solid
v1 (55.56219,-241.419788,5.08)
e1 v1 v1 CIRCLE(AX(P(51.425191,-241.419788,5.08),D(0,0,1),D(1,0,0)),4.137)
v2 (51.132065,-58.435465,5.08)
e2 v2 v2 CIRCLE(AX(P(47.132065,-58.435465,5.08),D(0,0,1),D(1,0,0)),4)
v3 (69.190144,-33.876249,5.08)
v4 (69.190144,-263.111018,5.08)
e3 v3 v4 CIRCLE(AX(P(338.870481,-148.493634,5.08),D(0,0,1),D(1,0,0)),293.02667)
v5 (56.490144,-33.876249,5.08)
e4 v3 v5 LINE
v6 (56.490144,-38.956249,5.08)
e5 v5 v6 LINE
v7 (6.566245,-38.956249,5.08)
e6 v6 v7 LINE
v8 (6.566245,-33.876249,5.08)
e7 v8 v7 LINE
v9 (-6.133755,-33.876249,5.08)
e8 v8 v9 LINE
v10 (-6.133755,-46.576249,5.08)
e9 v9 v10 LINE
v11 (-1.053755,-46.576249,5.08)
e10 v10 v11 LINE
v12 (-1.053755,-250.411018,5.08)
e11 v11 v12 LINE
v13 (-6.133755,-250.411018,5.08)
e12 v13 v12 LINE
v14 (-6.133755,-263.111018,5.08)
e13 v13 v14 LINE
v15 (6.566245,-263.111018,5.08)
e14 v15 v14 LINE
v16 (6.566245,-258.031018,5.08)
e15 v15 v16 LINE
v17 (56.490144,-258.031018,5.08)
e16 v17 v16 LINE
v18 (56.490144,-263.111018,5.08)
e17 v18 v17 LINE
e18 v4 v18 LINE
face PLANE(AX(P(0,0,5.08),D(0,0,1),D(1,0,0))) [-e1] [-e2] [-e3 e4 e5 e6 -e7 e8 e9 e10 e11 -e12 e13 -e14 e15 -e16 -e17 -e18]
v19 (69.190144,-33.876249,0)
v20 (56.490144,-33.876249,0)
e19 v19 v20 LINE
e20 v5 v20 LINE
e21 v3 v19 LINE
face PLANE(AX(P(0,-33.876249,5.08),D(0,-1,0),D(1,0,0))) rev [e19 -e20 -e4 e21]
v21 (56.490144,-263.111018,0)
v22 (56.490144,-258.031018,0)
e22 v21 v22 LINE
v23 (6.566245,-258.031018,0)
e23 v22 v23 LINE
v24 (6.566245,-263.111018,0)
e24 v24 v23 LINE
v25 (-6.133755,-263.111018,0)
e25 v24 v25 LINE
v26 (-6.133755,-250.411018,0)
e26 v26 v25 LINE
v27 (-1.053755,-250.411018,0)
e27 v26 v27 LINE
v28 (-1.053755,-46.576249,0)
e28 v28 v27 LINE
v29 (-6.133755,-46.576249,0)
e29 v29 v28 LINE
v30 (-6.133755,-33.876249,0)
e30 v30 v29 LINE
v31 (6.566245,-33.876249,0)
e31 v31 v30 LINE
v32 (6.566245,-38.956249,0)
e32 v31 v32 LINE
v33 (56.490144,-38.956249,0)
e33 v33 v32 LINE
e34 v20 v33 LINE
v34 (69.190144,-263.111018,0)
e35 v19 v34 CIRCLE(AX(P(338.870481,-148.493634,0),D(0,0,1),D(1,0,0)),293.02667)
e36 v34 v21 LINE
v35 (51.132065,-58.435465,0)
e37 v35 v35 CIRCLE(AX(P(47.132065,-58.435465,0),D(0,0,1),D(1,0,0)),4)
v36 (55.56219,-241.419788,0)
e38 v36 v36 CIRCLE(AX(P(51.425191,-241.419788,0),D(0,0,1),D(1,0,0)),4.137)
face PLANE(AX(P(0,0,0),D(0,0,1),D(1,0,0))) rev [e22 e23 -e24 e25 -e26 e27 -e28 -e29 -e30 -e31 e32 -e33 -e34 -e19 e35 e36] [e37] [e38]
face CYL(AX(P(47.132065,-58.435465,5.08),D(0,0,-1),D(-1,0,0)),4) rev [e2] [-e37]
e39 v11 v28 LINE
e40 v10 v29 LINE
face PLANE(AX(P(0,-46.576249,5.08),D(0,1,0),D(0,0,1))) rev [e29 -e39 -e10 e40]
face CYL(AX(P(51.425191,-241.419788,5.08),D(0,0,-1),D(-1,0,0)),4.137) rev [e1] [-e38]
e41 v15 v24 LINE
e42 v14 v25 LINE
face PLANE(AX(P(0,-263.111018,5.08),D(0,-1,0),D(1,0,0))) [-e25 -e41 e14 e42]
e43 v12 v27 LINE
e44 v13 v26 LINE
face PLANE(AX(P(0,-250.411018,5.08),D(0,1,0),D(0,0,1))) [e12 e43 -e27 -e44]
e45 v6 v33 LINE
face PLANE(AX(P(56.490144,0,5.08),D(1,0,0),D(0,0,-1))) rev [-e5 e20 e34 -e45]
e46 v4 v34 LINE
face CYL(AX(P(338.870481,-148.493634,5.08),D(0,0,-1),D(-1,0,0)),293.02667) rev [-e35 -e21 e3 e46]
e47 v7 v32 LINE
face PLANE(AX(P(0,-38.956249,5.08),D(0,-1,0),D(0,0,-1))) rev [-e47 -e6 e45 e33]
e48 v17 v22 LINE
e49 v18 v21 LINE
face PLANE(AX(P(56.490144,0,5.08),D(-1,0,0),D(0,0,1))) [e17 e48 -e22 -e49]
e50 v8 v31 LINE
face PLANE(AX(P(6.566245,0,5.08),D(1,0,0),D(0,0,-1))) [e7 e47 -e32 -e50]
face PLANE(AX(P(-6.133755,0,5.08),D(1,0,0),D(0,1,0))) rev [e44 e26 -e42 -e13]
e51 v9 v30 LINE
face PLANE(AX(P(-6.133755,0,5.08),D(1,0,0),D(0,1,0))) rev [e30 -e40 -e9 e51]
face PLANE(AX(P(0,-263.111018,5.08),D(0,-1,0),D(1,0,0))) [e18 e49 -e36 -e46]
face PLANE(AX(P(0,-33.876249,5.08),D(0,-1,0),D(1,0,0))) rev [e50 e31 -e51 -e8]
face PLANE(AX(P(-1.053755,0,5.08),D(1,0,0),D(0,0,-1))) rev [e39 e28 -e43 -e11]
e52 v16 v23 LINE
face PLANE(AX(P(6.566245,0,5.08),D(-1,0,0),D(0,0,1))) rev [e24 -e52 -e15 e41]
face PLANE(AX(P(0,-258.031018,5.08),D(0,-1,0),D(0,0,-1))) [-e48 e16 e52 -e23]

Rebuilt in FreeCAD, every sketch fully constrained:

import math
import FreeCAD as App
import Part
import Sketcher
from FreeCAD import Vector
Q = App.Units.Quantity

doc = App.newDocument("Part")
body = doc.addObject("PartDesign::Body", "Body")

sketch1 = body.newObject("Sketcher::SketchObject", "Sketch")
sketch1.AttachmentSupport = (doc.getObject("XY_Plane"), [""])
sketch1.MapMode = "FlatFace"
sketch1.addGeometry([
    Part.LineSegment(Vector(-6.1, -250.4, 0), Vector(-6.1, -263.1, 0)),
    Part.LineSegment(Vector(-6.1, -263.1, 0), Vector(6.6, -263.1, 0)),
    Part.LineSegment(Vector(6.6, -263.1, 0), Vector(6.6, -258, 0)),
    Part.LineSegment(Vector(6.6, -258, 0), Vector(56.5, -258, 0)),
    Part.LineSegment(Vector(56.5, -258, 0), Vector(56.5, -263.1, 0)),
    Part.LineSegment(Vector(56.5, -263.1, 0), Vector(69.2, -263.1, 0)),
    Part.ArcOfCircle(Part.Circle(Vector(338.9, -148.5, 0), Vector(0, 0, 1), 293), math.radians(157), math.radians(203)),
    Part.LineSegment(Vector(69.2, -33.9, 0), Vector(56.5, -33.9, 0)),
    Part.LineSegment(Vector(56.5, -33.9, 0), Vector(56.5, -39, 0)),
    Part.LineSegment(Vector(56.5, -39, 0), Vector(6.6, -39, 0)),
    Part.LineSegment(Vector(6.6, -39, 0), Vector(6.6, -33.9, 0)),
    Part.LineSegment(Vector(6.6, -33.9, 0), Vector(-6.1, -33.9, 0)),
    Part.LineSegment(Vector(-6.1, -33.9, 0), Vector(-6.1, -46.6, 0)),
    Part.LineSegment(Vector(-6.1, -46.6, 0), Vector(-1.1, -46.6, 0)),
    Part.LineSegment(Vector(-1.1, -46.6, 0), Vector(-1.1, -250.4, 0)),
    Part.LineSegment(Vector(-1.1, -250.4, 0), Vector(-6.1, -250.4, 0)),
    Part.Circle(Vector(51.4, -241.4, 0), Vector(0, 0, 1), 4.1),
    Part.Circle(Vector(47.1, -58.4, 0), Vector(0, 0, 1), 4),
], False)
sketch1.addConstraint([
    Sketcher.Constraint("Coincident", 0, 2, 1, 1),
    Sketcher.Constraint("Coincident", 1, 2, 2, 1),
    Sketcher.Constraint("Coincident", 2, 2, 3, 1),
    Sketcher.Constraint("Coincident", 3, 2, 4, 1),
    Sketcher.Constraint("Coincident", 4, 2, 5, 1),
    Sketcher.Constraint("Coincident", 5, 2, 6, 2),
    Sketcher.Constraint("Coincident", 6, 1, 7, 1),
    Sketcher.Constraint("Coincident", 7, 2, 8, 1),
    Sketcher.Constraint("Coincident", 8, 2, 9, 1),
    Sketcher.Constraint("Coincident", 9, 2, 10, 1),
    Sketcher.Constraint("Coincident", 10, 2, 11, 1),
    Sketcher.Constraint("Coincident", 11, 2, 12, 1),
    Sketcher.Constraint("Coincident", 12, 2, 13, 1),
    Sketcher.Constraint("Coincident", 13, 2, 14, 1),
    Sketcher.Constraint("Coincident", 14, 2, 15, 1),
    Sketcher.Constraint("Coincident", 15, 2, 0, 1),
    Sketcher.Constraint("Vertical", 0),
    Sketcher.Constraint("Horizontal", 1),
    Sketcher.Constraint("Vertical", 2),
    Sketcher.Constraint("Horizontal", 3),
    Sketcher.Constraint("Vertical", 4),
    Sketcher.Constraint("Horizontal", 5),
    Sketcher.Constraint("Horizontal", 7),
    Sketcher.Constraint("Vertical", 8),
    Sketcher.Constraint("Horizontal", 9),
    Sketcher.Constraint("Vertical", 10),
    Sketcher.Constraint("Horizontal", 11),
    Sketcher.Constraint("Vertical", 12),
    Sketcher.Constraint("Horizontal", 13),
    Sketcher.Constraint("Vertical", 14),
    Sketcher.Constraint("Horizontal", 15),
    Sketcher.Constraint("Horizontal", 1, 2, 4, 2),
    Sketcher.Constraint("Horizontal", 7, 2, 10, 2),
    Sketcher.Constraint("Vertical", 5, 2, 6, 1),
    Sketcher.Constraint("Vertical", 4, 2, 7, 2),
    Sketcher.Constraint("Vertical", 2, 2, 9, 2),
    Sketcher.Constraint("Vertical", 0, 2, 11, 2),
    Sketcher.Constraint("Equal", 1, 5),
    Sketcher.Constraint("Equal", 11, 0),
    Sketcher.Constraint("Equal", 15, 2),
    Sketcher.Constraint("Equal", 4, 8),
    Sketcher.Constraint("Equal", 0, 12),
    Sketcher.Constraint("DistanceX", 1, 1, 1, 2, Q("0.5 in")),
    Sketcher.Constraint("DistanceX", 13, 1, 13, 2, Q("0.2 in")),
    Sketcher.Constraint("Diameter", 16, Q("8.273999 mm")),
    Sketcher.Constraint("Diameter", 17, Q("8 mm")),
    Sketcher.Constraint("Radius", 6, Q("293.02667 mm")),
    Sketcher.Constraint("DistanceX", 3, 1, 3, 2, Q("49.923899 mm")),
    Sketcher.Constraint("DistanceY", 14, 2, 14, 1, Q("203.834768 mm")),
    Sketcher.Constraint("DistanceX", -1, 1, 6, 3, Q("338.870481 mm")),
    Sketcher.Constraint("DistanceX", -1, 1, 16, 3, Q("51.425191 mm")),
    Sketcher.Constraint("DistanceY", 16, 3, -1, 1, Q("241.419788 mm")),
    Sketcher.Constraint("DistanceY", 7, 2, -1, 1, Q("33.876249 mm")),
    Sketcher.Constraint("DistanceY", 6, 3, 17, 3, Q("90.058168 mm")),
    Sketcher.Constraint("DistanceX", 0, 2, 17, 3, Q("53.26582 mm")),
])
pad1 = body.newObject("PartDesign::Pad", "Pad")
pad1.Profile = sketch1
pad1.Length = Q("0.2 in")

doc.recompute()
